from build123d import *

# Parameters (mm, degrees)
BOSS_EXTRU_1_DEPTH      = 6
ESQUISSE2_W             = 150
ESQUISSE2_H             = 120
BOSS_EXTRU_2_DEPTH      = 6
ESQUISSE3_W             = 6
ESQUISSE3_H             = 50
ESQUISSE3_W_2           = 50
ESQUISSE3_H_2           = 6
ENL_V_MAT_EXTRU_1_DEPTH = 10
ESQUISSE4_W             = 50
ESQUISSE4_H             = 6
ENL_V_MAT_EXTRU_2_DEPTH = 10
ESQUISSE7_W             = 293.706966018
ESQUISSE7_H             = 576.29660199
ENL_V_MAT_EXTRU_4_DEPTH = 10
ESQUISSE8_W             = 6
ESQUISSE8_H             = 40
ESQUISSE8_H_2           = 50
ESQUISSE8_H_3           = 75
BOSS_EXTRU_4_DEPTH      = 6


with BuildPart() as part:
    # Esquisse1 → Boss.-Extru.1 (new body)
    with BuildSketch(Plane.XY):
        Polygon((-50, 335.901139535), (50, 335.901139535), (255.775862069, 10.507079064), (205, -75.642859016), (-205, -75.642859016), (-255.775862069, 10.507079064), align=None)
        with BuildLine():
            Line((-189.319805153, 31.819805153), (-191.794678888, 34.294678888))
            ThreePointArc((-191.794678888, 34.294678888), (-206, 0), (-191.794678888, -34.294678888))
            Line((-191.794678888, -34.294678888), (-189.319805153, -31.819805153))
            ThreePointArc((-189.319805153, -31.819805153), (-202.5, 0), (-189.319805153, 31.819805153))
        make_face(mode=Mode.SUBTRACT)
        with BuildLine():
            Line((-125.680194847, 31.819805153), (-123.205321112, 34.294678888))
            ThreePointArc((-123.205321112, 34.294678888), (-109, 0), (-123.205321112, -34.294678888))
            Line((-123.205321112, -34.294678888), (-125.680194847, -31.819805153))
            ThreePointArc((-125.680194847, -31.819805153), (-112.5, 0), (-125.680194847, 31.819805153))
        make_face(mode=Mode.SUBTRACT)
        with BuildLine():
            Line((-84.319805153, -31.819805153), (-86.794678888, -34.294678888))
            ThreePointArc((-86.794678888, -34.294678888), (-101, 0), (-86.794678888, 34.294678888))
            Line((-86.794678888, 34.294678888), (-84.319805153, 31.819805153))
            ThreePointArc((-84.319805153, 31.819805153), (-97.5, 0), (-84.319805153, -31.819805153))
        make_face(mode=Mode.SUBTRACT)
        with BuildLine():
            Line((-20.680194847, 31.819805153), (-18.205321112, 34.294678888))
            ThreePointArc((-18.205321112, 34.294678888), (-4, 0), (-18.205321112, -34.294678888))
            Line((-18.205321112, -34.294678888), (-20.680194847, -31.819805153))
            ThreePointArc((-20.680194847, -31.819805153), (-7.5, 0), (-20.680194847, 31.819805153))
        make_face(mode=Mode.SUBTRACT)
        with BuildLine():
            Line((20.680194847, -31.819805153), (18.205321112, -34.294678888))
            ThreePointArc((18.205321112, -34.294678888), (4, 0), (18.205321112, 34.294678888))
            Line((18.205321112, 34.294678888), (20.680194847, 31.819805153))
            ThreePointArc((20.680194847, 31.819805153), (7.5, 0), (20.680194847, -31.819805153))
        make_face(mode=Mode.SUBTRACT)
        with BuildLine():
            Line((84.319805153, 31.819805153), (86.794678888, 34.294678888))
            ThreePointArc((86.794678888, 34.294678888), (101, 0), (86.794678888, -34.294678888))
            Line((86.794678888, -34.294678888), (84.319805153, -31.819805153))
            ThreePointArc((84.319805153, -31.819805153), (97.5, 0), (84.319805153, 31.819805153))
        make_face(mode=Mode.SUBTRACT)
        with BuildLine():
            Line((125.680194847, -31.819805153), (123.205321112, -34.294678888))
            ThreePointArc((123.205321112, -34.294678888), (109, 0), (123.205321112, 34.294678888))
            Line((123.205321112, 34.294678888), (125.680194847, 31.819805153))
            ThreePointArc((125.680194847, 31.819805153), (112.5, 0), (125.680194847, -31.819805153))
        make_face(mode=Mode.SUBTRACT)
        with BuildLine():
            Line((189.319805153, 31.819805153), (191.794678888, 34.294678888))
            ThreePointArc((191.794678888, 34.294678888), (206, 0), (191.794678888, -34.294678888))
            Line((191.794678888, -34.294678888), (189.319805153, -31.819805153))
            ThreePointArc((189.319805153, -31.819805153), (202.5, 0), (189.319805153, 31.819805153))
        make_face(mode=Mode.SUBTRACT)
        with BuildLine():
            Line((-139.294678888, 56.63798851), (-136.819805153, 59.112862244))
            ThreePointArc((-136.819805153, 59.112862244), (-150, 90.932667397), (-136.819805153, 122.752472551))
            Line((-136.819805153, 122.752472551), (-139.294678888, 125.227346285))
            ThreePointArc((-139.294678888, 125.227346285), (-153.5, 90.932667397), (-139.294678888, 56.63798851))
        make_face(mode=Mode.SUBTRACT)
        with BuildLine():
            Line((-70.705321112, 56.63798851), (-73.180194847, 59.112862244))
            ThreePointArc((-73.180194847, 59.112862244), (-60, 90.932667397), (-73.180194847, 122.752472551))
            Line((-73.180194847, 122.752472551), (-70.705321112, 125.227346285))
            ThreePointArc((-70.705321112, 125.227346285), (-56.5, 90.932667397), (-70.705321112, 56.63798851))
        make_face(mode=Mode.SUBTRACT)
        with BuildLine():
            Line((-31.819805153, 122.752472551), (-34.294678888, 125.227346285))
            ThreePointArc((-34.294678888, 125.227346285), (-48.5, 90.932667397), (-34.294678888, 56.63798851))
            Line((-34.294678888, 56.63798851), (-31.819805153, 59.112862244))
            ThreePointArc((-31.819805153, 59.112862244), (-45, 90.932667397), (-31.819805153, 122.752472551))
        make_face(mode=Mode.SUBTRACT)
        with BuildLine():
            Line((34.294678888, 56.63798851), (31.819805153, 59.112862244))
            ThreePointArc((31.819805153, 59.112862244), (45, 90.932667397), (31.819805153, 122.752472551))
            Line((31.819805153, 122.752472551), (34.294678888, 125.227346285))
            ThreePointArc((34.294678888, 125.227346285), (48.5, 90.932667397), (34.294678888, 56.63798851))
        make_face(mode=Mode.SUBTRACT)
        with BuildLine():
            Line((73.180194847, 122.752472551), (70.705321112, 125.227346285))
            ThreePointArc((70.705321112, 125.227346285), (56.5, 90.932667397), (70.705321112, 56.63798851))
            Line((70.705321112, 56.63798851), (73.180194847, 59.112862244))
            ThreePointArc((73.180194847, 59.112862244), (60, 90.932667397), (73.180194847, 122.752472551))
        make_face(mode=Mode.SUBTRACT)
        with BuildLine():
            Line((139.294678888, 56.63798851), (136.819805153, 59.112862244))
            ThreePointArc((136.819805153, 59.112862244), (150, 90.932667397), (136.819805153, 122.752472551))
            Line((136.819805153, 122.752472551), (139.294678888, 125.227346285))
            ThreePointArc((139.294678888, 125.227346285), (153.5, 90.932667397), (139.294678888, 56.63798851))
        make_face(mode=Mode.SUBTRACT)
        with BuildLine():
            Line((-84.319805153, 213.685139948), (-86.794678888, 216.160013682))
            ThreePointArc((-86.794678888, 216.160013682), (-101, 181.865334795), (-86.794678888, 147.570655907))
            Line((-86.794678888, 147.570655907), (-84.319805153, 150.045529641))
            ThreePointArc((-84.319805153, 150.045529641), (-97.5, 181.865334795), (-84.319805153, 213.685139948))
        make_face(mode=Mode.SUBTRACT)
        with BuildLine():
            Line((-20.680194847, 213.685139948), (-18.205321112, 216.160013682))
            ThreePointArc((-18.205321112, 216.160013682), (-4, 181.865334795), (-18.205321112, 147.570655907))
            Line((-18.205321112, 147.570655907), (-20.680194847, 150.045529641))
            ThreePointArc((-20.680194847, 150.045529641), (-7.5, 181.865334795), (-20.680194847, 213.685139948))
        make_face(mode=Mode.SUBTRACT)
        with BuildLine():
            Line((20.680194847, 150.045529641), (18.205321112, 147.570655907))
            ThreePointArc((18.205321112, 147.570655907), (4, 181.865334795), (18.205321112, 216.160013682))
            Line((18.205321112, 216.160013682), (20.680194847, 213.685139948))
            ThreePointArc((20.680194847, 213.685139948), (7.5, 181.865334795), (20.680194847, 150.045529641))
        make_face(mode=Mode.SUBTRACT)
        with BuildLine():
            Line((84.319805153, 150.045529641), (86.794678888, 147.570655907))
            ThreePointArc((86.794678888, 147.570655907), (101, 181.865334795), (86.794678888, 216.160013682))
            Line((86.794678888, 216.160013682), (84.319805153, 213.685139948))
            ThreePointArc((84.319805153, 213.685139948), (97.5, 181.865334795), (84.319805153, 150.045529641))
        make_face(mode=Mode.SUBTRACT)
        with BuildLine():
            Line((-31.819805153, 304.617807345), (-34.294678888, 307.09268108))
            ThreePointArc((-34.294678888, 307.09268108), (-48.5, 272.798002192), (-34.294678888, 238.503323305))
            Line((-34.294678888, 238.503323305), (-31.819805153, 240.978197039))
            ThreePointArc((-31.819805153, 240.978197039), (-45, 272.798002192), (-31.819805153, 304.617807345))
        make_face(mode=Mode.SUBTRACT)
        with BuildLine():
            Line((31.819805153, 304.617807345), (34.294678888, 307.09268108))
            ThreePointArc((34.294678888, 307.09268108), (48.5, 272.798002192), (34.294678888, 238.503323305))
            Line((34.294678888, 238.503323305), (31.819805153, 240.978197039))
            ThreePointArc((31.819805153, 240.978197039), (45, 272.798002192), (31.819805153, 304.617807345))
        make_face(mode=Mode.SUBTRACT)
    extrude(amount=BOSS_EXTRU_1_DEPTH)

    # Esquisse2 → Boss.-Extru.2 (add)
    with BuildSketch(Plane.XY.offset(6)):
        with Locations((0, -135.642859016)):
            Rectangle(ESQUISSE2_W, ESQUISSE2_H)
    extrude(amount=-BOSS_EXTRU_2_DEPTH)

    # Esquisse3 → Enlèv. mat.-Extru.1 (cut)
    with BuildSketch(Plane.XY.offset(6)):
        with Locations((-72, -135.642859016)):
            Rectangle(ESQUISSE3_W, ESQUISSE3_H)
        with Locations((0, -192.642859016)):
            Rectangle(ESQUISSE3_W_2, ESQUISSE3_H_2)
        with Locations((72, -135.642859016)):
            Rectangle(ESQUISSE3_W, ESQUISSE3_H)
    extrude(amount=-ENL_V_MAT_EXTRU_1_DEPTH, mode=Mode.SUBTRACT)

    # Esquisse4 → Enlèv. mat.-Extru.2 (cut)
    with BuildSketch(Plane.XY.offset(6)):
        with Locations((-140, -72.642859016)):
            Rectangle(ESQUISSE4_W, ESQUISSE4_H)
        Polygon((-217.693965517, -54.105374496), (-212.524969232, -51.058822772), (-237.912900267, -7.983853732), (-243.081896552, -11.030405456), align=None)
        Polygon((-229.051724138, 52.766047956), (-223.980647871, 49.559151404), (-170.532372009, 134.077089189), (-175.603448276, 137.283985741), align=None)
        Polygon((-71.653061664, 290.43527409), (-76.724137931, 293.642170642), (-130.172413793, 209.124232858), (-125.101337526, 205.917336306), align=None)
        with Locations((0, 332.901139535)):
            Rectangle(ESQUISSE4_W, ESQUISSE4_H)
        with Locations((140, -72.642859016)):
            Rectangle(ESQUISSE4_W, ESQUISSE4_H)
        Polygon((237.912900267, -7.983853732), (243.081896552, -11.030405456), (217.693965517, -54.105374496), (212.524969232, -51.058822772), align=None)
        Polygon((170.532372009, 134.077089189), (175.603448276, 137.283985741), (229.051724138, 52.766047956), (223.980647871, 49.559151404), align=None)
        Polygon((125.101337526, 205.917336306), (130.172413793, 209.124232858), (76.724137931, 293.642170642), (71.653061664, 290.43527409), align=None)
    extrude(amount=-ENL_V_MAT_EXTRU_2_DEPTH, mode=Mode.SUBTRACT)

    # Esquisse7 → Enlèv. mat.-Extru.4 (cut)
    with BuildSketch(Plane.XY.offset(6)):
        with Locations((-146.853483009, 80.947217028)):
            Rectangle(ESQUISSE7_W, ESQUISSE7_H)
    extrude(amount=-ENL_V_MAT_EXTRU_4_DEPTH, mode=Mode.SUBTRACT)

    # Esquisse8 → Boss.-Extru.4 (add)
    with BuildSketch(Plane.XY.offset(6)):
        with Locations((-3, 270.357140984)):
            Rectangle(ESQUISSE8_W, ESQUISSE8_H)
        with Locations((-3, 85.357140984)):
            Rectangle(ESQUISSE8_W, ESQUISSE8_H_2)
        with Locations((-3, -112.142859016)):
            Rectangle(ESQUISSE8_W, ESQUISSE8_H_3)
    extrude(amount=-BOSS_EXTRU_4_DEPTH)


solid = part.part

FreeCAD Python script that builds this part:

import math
import FreeCAD as App
import Part
import Sketcher
from FreeCAD import Vector


def add_polygon(sketch, points):
    """Adds a closed chain of lines whose ends are joined by coincident constraints."""
    first, n = sketch.GeometryCount, len(points)
    for a, b in zip(points, points[1:] + points[:1]):
        sketch.addGeometry(Part.LineSegment(App.Vector(*a, 0), App.Vector(*b, 0)), False)
    for i in range(n):
        sketch.addConstraint(Sketcher.Constraint("Coincident", first + i, 2, first + (i + 1) % n, 1))

doc = App.newDocument("Part")
body = doc.addObject("PartDesign::Body", "Body")

sketch1 = body.newObject("Sketcher::SketchObject", "Sketch")
sketch1.AttachmentSupport = (doc.getObject("XY_Plane"), [""])
sketch1.MapMode = "FlatFace"
add_polygon(sketch1, [(50, 335.9), (-50, 335.9), (-255.8, 10.5), (-205, -75.6), (205, -75.6), (255.8, 10.5)])
sketch1.addGeometry(Part.LineSegment(Vector(189.3, 31.8, 0), Vector(191.8, 34.3, 0)), False)
sketch1.addGeometry(Part.ArcOfCircle(Part.Circle(Vector(157.5, 0, 0), Vector(0, 0, 1), 48.5), math.radians(-45), math.radians(45)), False)
sketch1.addGeometry(Part.LineSegment(Vector(191.8, -34.3, 0), Vector(189.3, -31.8, 0)), False)
sketch1.addGeometry(Part.ArcOfCircle(Part.Circle(Vector(157.5, 0, 0), Vector(0, 0, 1), 45), math.radians(-45), math.radians(45)), False)
sketch1.addGeometry(Part.LineSegment(Vector(125.7, -31.8, 0), Vector(123.2, -34.3, 0)), False)
sketch1.addGeometry(Part.ArcOfCircle(Part.Circle(Vector(157.5, 0, 0), Vector(0, 0, 1), 48.5), math.radians(135), math.radians(225)), False)
sketch1.addGeometry(Part.LineSegment(Vector(123.2, 34.3, 0), Vector(125.7, 31.8, 0)), False)
sketch1.addGeometry(Part.ArcOfCircle(Part.Circle(Vector(157.5, 0, 0), Vector(0, 0, 1), 45), math.radians(135), math.radians(225)), False)
sketch1.addGeometry(Part.LineSegment(Vector(84.3, 31.8, 0), Vector(86.8, 34.3, 0)), False)
sketch1.addGeometry(Part.ArcOfCircle(Part.Circle(Vector(52.5, 0, 0), Vector(0, 0, 1), 48.5), math.radians(-45), math.radians(45)), False)
sketch1.addGeometry(Part.LineSegment(Vector(86.8, -34.3, 0), Vector(84.3, -31.8, 0)), False)
sketch1.addGeometry(Part.ArcOfCircle(Part.Circle(Vector(52.5, 0, 0), Vector(0, 0, 1), 45), math.radians(-45), math.radians(45)), False)
sketch1.addGeometry(Part.LineSegment(Vector(20.7, -31.8, 0), Vector(18.2, -34.3, 0)), False)
sketch1.addGeometry(Part.ArcOfCircle(Part.Circle(Vector(52.5, 0, 0), Vector(0, 0, 1), 48.5), math.radians(135), math.radians(225)), False)
sketch1.addGeometry(Part.LineSegment(Vector(18.2, 34.3, 0), Vector(20.7, 31.8, 0)), False)
sketch1.addGeometry(Part.ArcOfCircle(Part.Circle(Vector(52.5, 0, 0), Vector(0, 0, 1), 45), math.radians(135), math.radians(225)), False)
sketch1.addGeometry(Part.LineSegment(Vector(139.3, 56.6, 0), Vector(136.8, 59.1, 0)), False)
sketch1.addGeometry(Part.ArcOfCircle(Part.Circle(Vector(105, 90.9, 0), Vector(0, 0, 1), 45), math.radians(-45), math.radians(45)), False)
sketch1.addGeometry(Part.LineSegment(Vector(136.8, 122.8, 0), Vector(139.3, 125.2, 0)), False)
sketch1.addGeometry(Part.ArcOfCircle(Part.Circle(Vector(105, 90.9, 0), Vector(0, 0, 1), 48.5), math.radians(-45), math.radians(45)), False)
sketch1.addGeometry(Part.ArcOfCircle(Part.Circle(Vector(105, 90.9, 0), Vector(0, 0, 1), 45), math.radians(135), math.radians(225)), False)
sketch1.addGeometry(Part.LineSegment(Vector(73.2, 59.1, 0), Vector(70.7, 56.6, 0)), False)
sketch1.addGeometry(Part.ArcOfCircle(Part.Circle(Vector(105, 90.9, 0), Vector(0, 0, 1), 48.5), math.radians(135), math.radians(225)), False)
sketch1.addGeometry(Part.LineSegment(Vector(70.7, 125.2, 0), Vector(73.2, 122.8, 0)), False)
sketch1.addGeometry(Part.LineSegment(Vector(34.3, 56.6, 0), Vector(31.8, 59.1, 0)), False)
sketch1.addGeometry(Part.ArcOfCircle(Part.Circle(Vector(0, 90.9, 0), Vector(0, 0, 1), 45), math.radians(-45), math.radians(45)), False)
sketch1.addGeometry(Part.LineSegment(Vector(31.8, 122.8, 0), Vector(34.3, 125.2, 0)), False)
sketch1.addGeometry(Part.ArcOfCircle(Part.Circle(Vector(0, 90.9, 0), Vector(0, 0, 1), 48.5), math.radians(-45), math.radians(45)), False)
sketch1.addGeometry(Part.LineSegment(Vector(-20.7, 31.8, 0), Vector(-18.2, 34.3, 0)), False)
sketch1.addGeometry(Part.ArcOfCircle(Part.Circle(Vector(-52.5, 0, 0), Vector(0, 0, 1), 48.5), math.radians(-45), math.radians(45)), False)
sketch1.addGeometry(Part.LineSegment(Vector(-18.2, -34.3, 0), Vector(-20.7, -31.8, 0)), False)
sketch1.addGeometry(Part.ArcOfCircle(Part.Circle(Vector(-52.5, 0, 0), Vector(0, 0, 1), 45), math.radians(-45), math.radians(45)), False)
sketch1.addGeometry(Part.LineSegment(Vector(-84.3, -31.8, 0), Vector(-86.8, -34.3, 0)), False)
sketch1.addGeometry(Part.ArcOfCircle(Part.Circle(Vector(-52.5, 0, 0), Vector(0, 0, 1), 48.5), math.radians(135), math.radians(225)), False)
sketch1.addGeometry(Part.LineSegment(Vector(-86.8, 34.3, 0), Vector(-84.3, 31.8, 0)), False)
sketch1.addGeometry(Part.ArcOfCircle(Part.Circle(Vector(-52.5, 0, 0), Vector(0, 0, 1), 45), math.radians(135), math.radians(225)), False)
sketch1.addGeometry(Part.LineSegment(Vector(-125.7, 31.8, 0), Vector(-123.2, 34.3, 0)), False)
sketch1.addGeometry(Part.ArcOfCircle(Part.Circle(Vector(-157.5, 0, 0), Vector(0, 0, 1), 48.5), math.radians(-45), math.radians(45)), False)
sketch1.addGeometry(Part.LineSegment(Vector(-123.2, -34.3, 0), Vector(-125.7, -31.8, 0)), False)
sketch1.addGeometry(Part.ArcOfCircle(Part.Circle(Vector(-157.5, 0, 0), Vector(0, 0, 1), 45), math.radians(-45), math.radians(45)), False)
sketch1.addGeometry(Part.ArcOfCircle(Part.Circle(Vector(-157.5, 0, 0), Vector(0, 0, 1), 45), math.radians(135), math.radians(225)), False)
sketch1.addGeometry(Part.LineSegment(Vector(-189.3, -31.8, 0), Vector(-191.8, -34.3, 0)), False)
sketch1.addGeometry(Part.ArcOfCircle(Part.Circle(Vector(-157.5, 0, 0), Vector(0, 0, 1), 48.5), math.radians(135), math.radians(225)), False)
sketch1.addGeometry(Part.LineSegment(Vector(-191.8, 34.3, 0), Vector(-189.3, 31.8, 0)), False)
sketch1.addGeometry(Part.ArcOfCircle(Part.Circle(Vector(0, 90.9, 0), Vector(0, 0, 1), 45), math.radians(135), math.radians(225)), False)
sketch1.addGeometry(Part.LineSegment(Vector(-31.8, 59.1, 0), Vector(-34.3, 56.6, 0)), False)
sketch1.addGeometry(Part.ArcOfCircle(Part.Circle(Vector(0, 90.9, 0), Vector(0, 0, 1), 48.5), math.radians(135), math.radians(225)), False)
sketch1.addGeometry(Part.LineSegment(Vector(-34.3, 125.2, 0), Vector(-31.8, 122.8, 0)), False)
sketch1.addGeometry(Part.LineSegment(Vector(-70.7, 56.6, 0), Vector(-73.2, 59.1, 0)), False)
sketch1.addGeometry(Part.ArcOfCircle(Part.Circle(Vector(-105, 90.9, 0), Vector(0, 0, 1), 45), math.radians(-45), math.radians(45)), False)
sketch1.addGeometry(Part.LineSegment(Vector(-73.2, 122.8, 0), Vector(-70.7, 125.2, 0)), False)
sketch1.addGeometry(Part.ArcOfCircle(Part.Circle(Vector(-105, 90.9, 0), Vector(0, 0, 1), 48.5), math.radians(-45), math.radians(45)), False)
sketch1.addGeometry(Part.ArcOfCircle(Part.Circle(Vector(-105, 90.9, 0), Vector(0, 0, 1), 48.5), math.radians(135), math.radians(225)), False)
sketch1.addGeometry(Part.LineSegment(Vector(-139.3, 125.2, 0), Vector(-136.8, 122.8, 0)), False)
sketch1.addGeometry(Part.ArcOfCircle(Part.Circle(Vector(-105, 90.9, 0), Vector(0, 0, 1), 45), math.radians(135), math.radians(225)), False)
sketch1.addGeometry(Part.LineSegment(Vector(-136.8, 59.1, 0), Vector(-139.3, 56.6, 0)), False)
sketch1.addGeometry(Part.ArcOfCircle(Part.Circle(Vector(52.5, 181.9, 0), Vector(0, 0, 1), 45), math.radians(-45), math.radians(45)), False)
sketch1.addGeometry(Part.LineSegment(Vector(84.3, 213.7, 0), Vector(86.8, 216.2, 0)), False)
sketch1.addGeometry(Part.ArcOfCircle(Part.Circle(Vector(52.5, 181.9, 0), Vector(0, 0, 1), 48.5), math.radians(-45), math.radians(45)), False)
sketch1.addGeometry(Part.LineSegment(Vector(86.8, 147.6, 0), Vector(84.3, 150, 0)), False)
sketch1.addGeometry(Part.LineSegment(Vector(20.7, 150, 0), Vector(18.2, 147.6, 0)), False)
sketch1.addGeometry(Part.ArcOfCircle(Part.Circle(Vector(52.5, 181.9, 0), Vector(0, 0, 1), 48.5), math.radians(135), math.radians(225)), False)
sketch1.addGeometry(Part.LineSegment(Vector(18.2, 216.2, 0), Vector(20.7, 213.7, 0)), False)
sketch1.addGeometry(Part.ArcOfCircle(Part.Circle(Vector(52.5, 181.9, 0), Vector(0, 0, 1), 45), math.radians(135), math.radians(225)), False)
sketch1.addGeometry(Part.LineSegment(Vector(31.8, 304.6, 0), Vector(34.3, 307.1, 0)), False)
sketch1.addGeometry(Part.ArcOfCircle(Part.Circle(Vector(0, 272.8, 0), Vector(0, 0, 1), 48.5), math.radians(-45), math.radians(45)), False)
sketch1.addGeometry(Part.LineSegment(Vector(34.3, 238.5, 0), Vector(31.8, 241, 0)), False)
sketch1.addGeometry(Part.ArcOfCircle(Part.Circle(Vector(0, 272.8, 0), Vector(0, 0, 1), 45), math.radians(-45), math.radians(45)), False)
sketch1.addGeometry(Part.LineSegment(Vector(-20.7, 213.7, 0), Vector(-18.2, 216.2, 0)), False)
sketch1.addGeometry(Part.ArcOfCircle(Part.Circle(Vector(-52.5, 181.9, 0), Vector(0, 0, 1), 48.5), math.radians(-45), math.radians(45)), False)
sketch1.addGeometry(Part.LineSegment(Vector(-18.2, 147.6, 0), Vector(-20.7, 150, 0)), False)
sketch1.addGeometry(Part.ArcOfCircle(Part.Circle(Vector(-52.5, 181.9, 0), Vector(0, 0, 1), 45), math.radians(-45), math.radians(45)), False)
sketch1.addGeometry(Part.ArcOfCircle(Part.Circle(Vector(-52.5, 181.9, 0), Vector(0, 0, 1), 45), math.radians(135), math.radians(225)), False)
sketch1.addGeometry(Part.LineSegment(Vector(-84.3, 150, 0), Vector(-86.8, 147.6, 0)), False)
sketch1.addGeometry(Part.ArcOfCircle(Part.Circle(Vector(-52.5, 181.9, 0), Vector(0, 0, 1), 48.5), math.radians(135), math.radians(225)), False)
sketch1.addGeometry(Part.LineSegment(Vector(-86.8, 216.2, 0), Vector(-84.3, 213.7, 0)), False)
sketch1.addGeometry(Part.ArcOfCircle(Part.Circle(Vector(0, 272.8, 0), Vector(0, 0, 1), 45), math.radians(135), math.radians(225)), False)
sketch1.addGeometry(Part.LineSegment(Vector(-31.8, 241, 0), Vector(-34.3, 238.5, 0)), False)
sketch1.addGeometry(Part.ArcOfCircle(Part.Circle(Vector(0, 272.8, 0), Vector(0, 0, 1), 48.5), math.radians(135), math.radians(225)), False)
sketch1.addGeometry(Part.LineSegment(Vector(-34.3, 307.1, 0), Vector(-31.8, 304.6, 0)), False)
sketch1.addConstraint([
    Sketcher.Constraint("Coincident", 6, 2, 7, 2),
    Sketcher.Constraint("Coincident", 7, 1, 8, 1),
    Sketcher.Constraint("Coincident", 8, 2, 9, 1),
    Sketcher.Constraint("Coincident", 9, 2, 6, 1),
    Sketcher.Constraint("Coincident", 10, 2, 11, 2),
    Sketcher.Constraint("Coincident", 11, 1, 12, 1),
    Sketcher.Constraint("Coincident", 12, 2, 13, 1),
    Sketcher.Constraint("Coincident", 13, 2, 10, 1),
    Sketcher.Constraint("Coincident", 14, 2, 15, 2),
    Sketcher.Constraint("Coincident", 15, 1, 16, 1),
    Sketcher.Constraint("Coincident", 16, 2, 17, 1),
    Sketcher.Constraint("Coincident", 17, 2, 14, 1),
    Sketcher.Constraint("Coincident", 18, 2, 19, 2),
    Sketcher.Constraint("Coincident", 19, 1, 20, 1),
    Sketcher.Constraint("Coincident", 20, 2, 21, 1),
    Sketcher.Constraint("Coincident", 21, 2, 18, 1),
    Sketcher.Constraint("Coincident", 22, 2, 23, 1),
    Sketcher.Constraint("Coincident", 23, 2, 24, 1),
    Sketcher.Constraint("Coincident", 24, 2, 25, 2),
    Sketcher.Constraint("Coincident", 25, 1, 22, 1),
    Sketcher.Constraint("Coincident", 26, 2, 27, 1),
    Sketcher.Constraint("Coincident", 27, 2, 28, 2),
    Sketcher.Constraint("Coincident", 28, 1, 29, 1),
    Sketcher.Constraint("Coincident", 29, 2, 26, 1),
    Sketcher.Constraint("Coincident", 30, 2, 31, 1),
    Sketcher.Constraint("Coincident", 31, 2, 32, 1),
    Sketcher.Constraint("Coincident", 32, 2, 33, 2),
    Sketcher.Constraint("Coincident", 33, 1, 30, 1),
    Sketcher.Constraint("Coincident", 34, 2, 35, 2),
    Sketcher.Constraint("Coincident", 35, 1, 36, 1),
    Sketcher.Constraint("Coincident", 36, 2, 37, 1),
    Sketcher.Constraint("Coincident", 37, 2, 34, 1),
    Sketcher.Constraint("Coincident", 38, 2, 39, 2),
    Sketcher.Constraint("Coincident", 39, 1, 40, 1),
    Sketcher.Constraint("Coincident", 40, 2, 41, 1),
    Sketcher.Constraint("Coincident", 41, 2, 38, 1),
    Sketcher.Constraint("Coincident", 42, 2, 43, 2),
    Sketcher.Constraint("Coincident", 43, 1, 44, 1),
    Sketcher.Constraint("Coincident", 44, 2, 45, 1),
    Sketcher.Constraint("Coincident", 45, 2, 42, 1),
    Sketcher.Constraint("Coincident", 46, 2, 47, 1),
    Sketcher.Constraint("Coincident", 47, 2, 48, 2),
    Sketcher.Constraint("Coincident", 48, 1, 49, 1),
    Sketcher.Constraint("Coincident", 49, 2, 46, 1),
    Sketcher.Constraint("Coincident", 50, 2, 51, 1),
    Sketcher.Constraint("Coincident", 51, 2, 52, 2),
    Sketcher.Constraint("Coincident", 52, 1, 53, 1),
    Sketcher.Constraint("Coincident", 53, 2, 50, 1),
    Sketcher.Constraint("Coincident", 54, 2, 55, 1),
    Sketcher.Constraint("Coincident", 55, 2, 56, 1),
    Sketcher.Constraint("Coincident", 56, 2, 57, 2),
    Sketcher.Constraint("Coincident", 57, 1, 54, 1),
    Sketcher.Constraint("Coincident", 58, 1, 59, 1),
    Sketcher.Constraint("Coincident", 59, 2, 60, 1),
    Sketcher.Constraint("Coincident", 60, 2, 61, 1),
    Sketcher.Constraint("Coincident", 61, 2, 58, 2),
    Sketcher.Constraint("Coincident", 62, 2, 63, 1),
    Sketcher.Constraint("Coincident", 63, 2, 64, 2),
    Sketcher.Constraint("Coincident", 64, 1, 65, 1),
    Sketcher.Constraint("Coincident", 65, 2, 62, 1),
    Sketcher.Constraint("Coincident", 66, 2, 67, 2),
    Sketcher.Constraint("Coincident", 67, 1, 68, 1),
    Sketcher.Constraint("Coincident", 68, 2, 69, 1),
    Sketcher.Constraint("Coincident", 69, 2, 66, 1),
    Sketcher.Constraint("Coincident", 70, 2, 71, 2),
    Sketcher.Constraint("Coincident", 71, 1, 72, 1),
    Sketcher.Constraint("Coincident", 72, 2, 73, 1),
    Sketcher.Constraint("Coincident", 73, 2, 70, 1),
    Sketcher.Constraint("Coincident", 74, 2, 75, 2),
    Sketcher.Constraint("Coincident", 75, 1, 76, 1),
    Sketcher.Constraint("Coincident", 76, 2, 77, 1),
    Sketcher.Constraint("Coincident", 77, 2, 74, 1),
    Sketcher.Constraint("Coincident", 78, 2, 79, 1),
    Sketcher.Constraint("Coincident", 79, 2, 80, 2),
    Sketcher.Constraint("Coincident", 80, 1, 81, 1),
    Sketcher.Constraint("Coincident", 81, 2, 78, 1),
    Sketcher.Constraint("Coincident", 82, 2, 83, 1),
    Sketcher.Constraint("Coincident", 83, 2, 84, 2),
    Sketcher.Constraint("Coincident", 84, 1, 85, 1),
    Sketcher.Constraint("Coincident", 85, 2, 82, 1),
    Sketcher.Constraint("Horizontal", 0),
    Sketcher.Constraint("Horizontal", 3),
    Sketcher.Constraint("Coincident", 9, 3, 7, 3),
    Sketcher.Constraint("Coincident", 11, 3, 7, 3),
    Sketcher.Constraint("Coincident", 13, 3, 7, 3),
    Sketcher.Constraint("Coincident", 17, 3, 15, 3),
    Sketcher.Constraint("Coincident", 19, 3, 15, 3),
    Sketcher.Constraint("Coincident", 21, 3, 15, 3),
    Sketcher.Constraint("Coincident", 25, 3, 23, 3),
    Sketcher.Constraint("Coincident", 26, 3, 23, 3),
    Sketcher.Constraint("Coincident", 28, 3, 23, 3),
    Sketcher.Constraint("Coincident", 33, 3, 31, 3),
    Sketcher.Constraint("Coincident", 37, 3, 35, 3),
    Sketcher.Constraint("Coincident", 39, 3, 35, 3),
    Sketcher.Constraint("Coincident", 41, 3, 35, 3),
    Sketcher.Constraint("Coincident", 45, 3, 43, 3),
    Sketcher.Constraint("Coincident", 46, 3, 43, 3),
    Sketcher.Constraint("Coincident", 48, 3, 43, 3),
    Sketcher.Constraint("Coincident", 50, 3, 31, 3),
    Sketcher.Constraint("Coincident", 52, 3, 31, 3),
    Sketcher.Constraint("Coincident", 57, 3, 55, 3),
    Sketcher.Constraint("Coincident", 58, 3, 55, 3),
    Sketcher.Constraint("Coincident", 60, 3, 55, 3),
    Sketcher.Constraint("Coincident", 64, 3, 62, 3),
    Sketcher.Constraint("Coincident", 67, 3, 62, 3),
    Sketcher.Constraint("Coincident", 69, 3, 62, 3),
    Sketcher.Constraint("Coincident", 73, 3, 71, 3),
    Sketcher.Constraint("Coincident", 77, 3, 75, 3),
    Sketcher.Constraint("Coincident", 78, 3, 75, 3),
    Sketcher.Constraint("Coincident", 80, 3, 75, 3),
    Sketcher.Constraint("Coincident", 82, 3, 71, 3),
    Sketcher.Constraint("Coincident", 84, 3, 71, 3),
    Sketcher.Constraint("Equal", 7, 11),
    Sketcher.Constraint("Equal", 9, 13),
    Sketcher.Constraint("Equal", 11, 15),
    Sketcher.Constraint("Equal", 13, 17),
    Sketcher.Constraint("Equal", 15, 19),
    Sketcher.Constraint("Equal", 17, 21),
    Sketcher.Constraint("Equal", 21, 23),
    Sketcher.Constraint("Equal", 19, 25),
    Sketcher.Constraint("Equal", 23, 26),
    Sketcher.Constraint("Equal", 25, 28),
    Sketcher.Constraint("Equal", 26, 31),
    Sketcher.Constraint("Equal", 28, 33),
    Sketcher.Constraint("Equal", 33, 35),
    Sketcher.Constraint("Equal", 31, 37),
    Sketcher.Constraint("Equal", 35, 39),
    Sketcher.Constraint("Equal", 37, 41),
    Sketcher.Constraint("Equal", 39, 43),
    Sketcher.Constraint("Equal", 41, 45),
    Sketcher.Constraint("Equal", 45, 46),
    Sketcher.Constraint("Equal", 43, 48),
    Sketcher.Constraint("Equal", 46, 50),
    Sketcher.Constraint("Equal", 48, 52),
    Sketcher.Constraint("Equal", 50, 55),
    Sketcher.Constraint("Equal", 52, 57),
    Sketcher.Constraint("Equal", 57, 58),
    Sketcher.Constraint("Equal", 55, 60),
    Sketcher.Constraint("Equal", 60, 62),
    Sketcher.Constraint("Equal", 58, 64),
    Sketcher.Constraint("Equal", 64, 67),
    Sketcher.Constraint("Equal", 62, 69),
    Sketcher.Constraint("Equal", 67, 71),
    Sketcher.Constraint("Equal", 69, 73),
    Sketcher.Constraint("Equal", 71, 75),
    Sketcher.Constraint("Equal", 73, 77),
    Sketcher.Constraint("Equal", 77, 78),
    Sketcher.Constraint("Equal", 75, 80),
    Sketcher.Constraint("Equal", 78, 82),
    Sketcher.Constraint("Equal", 80, 84),
    Sketcher.Constraint("Symmetric", 15, 3, 35, 3, -1, 1),
    Sketcher.Constraint("Symmetric", 7, 3, 43, 3, -1, 1),
    Sketcher.Constraint("Symmetric", 23, 3, 55, 3, -2),
    Sketcher.Constraint("Symmetric", 62, 3, 75, 3, -2),
    Sketcher.Constraint("Symmetric", 1, 2, 4, 2, -2),
    Sketcher.Constraint("Symmetric", 19, 1, 34, 2, -2),
    Sketcher.Constraint("Symmetric", 11, 1, 42, 2, -2),
    Sketcher.Constraint("Symmetric", 30, 2, 50, 2, -2),
    Sketcher.Constraint("Symmetric", 72, 2, 82, 2, -2),
    Sketcher.Constraint("Perpendicular", 6, 8),
    Sketcher.Constraint("Perpendicular", 8, 10),
    Sketcher.Constraint("Perpendicular", 10, 12),
    Sketcher.Constraint("Perpendicular", 12, 14),
    Sketcher.Constraint("Perpendicular", 14, 16),
    Sketcher.Constraint("Perpendicular", 16, 18),
    Sketcher.Constraint("Perpendicular", 18, 20),
    Sketcher.Constraint("Parallel", 20, 22),
    Sketcher.Constraint("Perpendicular", 22, 24),
    Sketcher.Constraint("Parallel", 24, 27),
    Sketcher.Constraint("Perpendicular", 27, 29),
    Sketcher.Constraint("Parallel", 29, 30),
    Sketcher.Constraint("Perpendicular", 30, 32),
    Sketcher.Constraint("Parallel", 32, 34),
    Sketcher.Constraint("Perpendicular", 34, 36),
    Sketcher.Constraint("Perpendicular", 36, 38),
    Sketcher.Constraint("Perpendicular", 38, 40),
    Sketcher.Constraint("Perpendicular", 40, 42),
    Sketcher.Constraint("Perpendicular", 42, 44),
    Sketcher.Constraint("Perpendicular", 44, 47),
    Sketcher.Constraint("Perpendicular", 47, 49),
    Sketcher.Constraint("Perpendicular", 49, 51),
    Sketcher.Constraint("Perpendicular", 51, 53),
    Sketcher.Constraint("Parallel", 53, 54),
    Sketcher.Constraint("Perpendicular", 54, 56),
    Sketcher.Constraint("Perpendicular", 56, 59),
    Sketcher.Constraint("Perpendicular", 59, 61),
    Sketcher.Constraint("Parallel", 61, 63),
    Sketcher.Constraint("Perpendicular", 63, 65),
    Sketcher.Constraint("Perpendicular", 65, 66),
    Sketcher.Constraint("Perpendicular", 66, 68),
    Sketcher.Constraint("Perpendicular", 68, 70),
    Sketcher.Constraint("Perpendicular", 70, 72),
    Sketcher.Constraint("Perpendicular", 72, 74),
    Sketcher.Constraint("Perpendicular", 74, 76),
    Sketcher.Constraint("Perpendicular", 76, 79),
    Sketcher.Constraint("Perpendicular", 79, 81),
    Sketcher.Constraint("Perpendicular", 81, 83),
    Sketcher.Constraint("Perpendicular", 83, 85),
    Sketcher.Constraint("Horizontal", 28, 3, 31, 3),
    Sketcher.Constraint("Horizontal", 7, 1, 10, 2),
    Sketcher.Constraint("Horizontal", 6, 2, 11, 1),
    Sketcher.Constraint("Horizontal", 9, 2, 12, 2),
    Sketcher.Constraint("Horizontal", 11, 1, 14, 2),
    Sketcher.Constraint("Horizontal", 10, 2, 15, 1),
    Sketcher.Constraint("Horizontal", 15, 1, 18, 2),
    Sketcher.Constraint("Horizontal", 14, 2, 19, 1),
    Sketcher.Constraint("Horizontal", 22, 2, 26, 2),
    Sketcher.Constraint("Horizontal", 24, 2, 28, 1),
    Sketcher.Constraint("Horizontal", 26, 2, 30, 2),
    Sketcher.Constraint("Horizontal", 29, 2, 31, 2),
    Sketcher.Constraint("Horizontal", 18, 2, 35, 1),
    Sketcher.Constraint("Horizontal", 35, 1, 38, 2),
    Sketcher.Constraint("Horizontal", 34, 2, 39, 1),
    Sketcher.Constraint("Horizontal", 38, 2, 43, 1),
    Sketcher.Constraint("Horizontal", 44, 2, 46, 2),
    Sketcher.Constraint("Horizontal", 42, 2, 48, 1),
    Sketcher.Constraint("Horizontal", 32, 2, 52, 1),
    Sketcher.Constraint("Horizontal", 50, 2, 54, 2),
    Sketcher.Constraint("Horizontal", 53, 2, 55, 2),
    Sketcher.Constraint("Horizontal", 56, 2, 58, 1),
    Sketcher.Constraint("Horizontal", 54, 2, 60, 2),
    Sketcher.Constraint("Horizontal", 64, 1, 66, 2),
    Sketcher.Constraint("Horizontal", 63, 2, 67, 1),
    Sketcher.Constraint("Horizontal", 67, 1, 74, 2),
    Sketcher.Constraint("Horizontal", 66, 2, 75, 1),
    Sketcher.Constraint("Horizontal", 76, 2, 78, 2),
    Sketcher.Constraint("Horizontal", 74, 2, 80, 1),
    Sketcher.Constraint("Horizontal", 70, 2, 84, 1),
    Sketcher.Constraint("Vertical", 21, 3, 62, 3),
    Sketcher.Constraint("Vertical", 6, 2, 7, 1),
    Sketcher.Constraint("Vertical", 22, 2, 23, 2),
    Sketcher.Constraint("Vertical", 17, 2, 62, 2),
    Sketcher.Constraint("Vertical", 63, 2, 64, 1),
    Sketcher.Constraint("Vertical", 33, 1, 70, 2),
    Sketcher.Constraint("Vertical", 70, 2, 71, 1),
    Sketcher.Constraint("Equal", 2, 4),
    Sketcher.Constraint("Equal", 1, 5),
    Sketcher.Constraint("Radius", 9, 45.0),
    Sketcher.Constraint("Radius", 7, 48.5),
    Sketcher.Constraint("DistanceX", 0, 2, 0, 1, 100.0),
    Sketcher.Constraint("DistanceX", 3, 1, 3, 2, 410.0),
    Sketcher.Constraint("Distance", 1, 385.0),
    Sketcher.Constraint("Distance", 2, 100.0),
    Sketcher.Constraint("DistanceX", -1, 1, 23, 3, 105.0),
    Sketcher.Constraint("DistanceX", -1, 1, 7, 3, 157.5),
    Sketcher.Constraint("DistanceX", -1, 1, 15, 3, 52.5),
    Sketcher.Constraint("DistanceY", -1, 1, 0, 2, 335.90114),
    Sketcher.Constraint("DistanceY", -1, 1, 1, 2, 10.507079),
    Sketcher.Constraint("DistanceX", -1, 1, 6, 2, 191.794679),
    Sketcher.Constraint("DistanceX", -1, 1, 24, 2, 139.294679),
    Sketcher.Constraint("DistanceY", -1, 1, 25, 1, 56.637989),
    Sketcher.Constraint("DistanceY", -1, 1, 62, 2, 213.68514),
    Sketcher.Constraint("DistanceY", -1, 1, 70, 2, 307.092681),
])
pad1 = body.newObject("PartDesign::Pad", "Pad")
pad1.Profile = sketch1
pad1.Length = 6

sketch2 = body.newObject("Sketcher::SketchObject", "Sketch001")
sketch2.AttachmentSupport = (doc.getObject("XY_Plane"), [""])
sketch2.MapMode = "FlatFace"
sketch2.AttachmentOffset = App.Placement(Vector(0, 0, 6), App.Rotation())
add_polygon(sketch2, [(-75, -76), (-75, -196), (75, -196), (75, -76)])
sketch2.addConstraint([
    Sketcher.Constraint("Vertical", 0),
    Sketcher.Constraint("Horizontal", 1),
    Sketcher.Constraint("Vertical", 2),
    Sketcher.Constraint("Horizontal", 3),
    Sketcher.Constraint("DistanceX", 1, 1, 1, 2, 150.0),
    Sketcher.Constraint("DistanceY", 0, 2, 0, 1, 120.0),
    Sketcher.Constraint("DistanceX", 0, 2, -1, 1, 75.0),
    Sketcher.Constraint("DistanceY", 0, 2, -1, 1, 195.642859),
])
pad2 = body.newObject("PartDesign::Pad", "Pad001")
pad2.Profile = sketch2
pad2.Length = 6
pad2.Reversed = True

sketch3 = body.newObject("Sketcher::SketchObject", "Sketch002")
sketch3.AttachmentSupport = (doc.getObject("XY_Plane"), [""])
sketch3.MapMode = "FlatFace"
sketch3.AttachmentOffset = App.Placement(Vector(0, 0, 6), App.Rotation())
add_polygon(sketch3, [(-75, -111), (-75, -161), (-69, -161), (-69, -111)])
add_polygon(sketch3, [(-25, -190), (-25, -196), (25, -196), (25, -190)])
add_polygon(sketch3, [(69, -111), (69, -161), (75, -161), (75, -111)])
sketch3.addConstraint([
    Sketcher.Constraint("Vertical", 0),
    Sketcher.Constraint("Horizontal", 1),
    Sketcher.Constraint("Vertical", 2),
    Sketcher.Constraint("Horizontal", 3),
    Sketcher.Constraint("Vertical", 4),
    Sketcher.Constraint("Horizontal", 5),
    Sketcher.Constraint("Vertical", 6),
    Sketcher.Constraint("Horizontal", 7),
    Sketcher.Constraint("Vertical", 8),
    Sketcher.Constraint("Horizontal", 9),
    Sketcher.Constraint("Vertical", 10),
    Sketcher.Constraint("Horizontal", 11),
    Sketcher.Constraint("Symmetric", 1, 2, 8, 2, -2),
    Sketcher.Constraint("Symmetric", 3, 2, 10, 2, -2),
    Sketcher.Constraint("Equal", 7, 0),
    Sketcher.Constraint("Equal", 11, 4),
    Sketcher.Constraint("DistanceX", 1, 1, 1, 2, 6.0),
    Sketcher.Constraint("DistanceX", 5, 1, 5, 2, 50.0),
    Sketcher.Constraint("DistanceX", 0, 2, -1, 1, 75.0),
    Sketcher.Constraint("DistanceX", 4, 2, -1, 1, 25.0),
    Sketcher.Constraint("DistanceY", 4, 2, 1, 2, 35.0),
    Sketcher.Constraint("DistanceY", 0, 2, -1, 1, 160.642859),
])
pocket1 = body.newObject("PartDesign::Pocket", "Pocket")
pocket1.Profile = sketch3
pocket1.Length = 10

sketch4 = body.newObject("Sketcher::SketchObject", "Sketch003")
sketch4.AttachmentSupport = (doc.getObject("XY_Plane"), [""])
sketch4.MapMode = "FlatFace"
sketch4.AttachmentOffset = App.Placement(Vector(0, 0, 6), App.Rotation())
add_polygon(sketch4, [(-165, -70), (-165, -76), (-115, -76), (-115, -70)])
add_polygon(sketch4, [(-218, -54), (-213, -51), (-238, -8), (-243, -11)])
add_polygon(sketch4, [(-229, 53), (-224, 50), (-171, 134), (-176, 137)])
add_polygon(sketch4, [(-72, 290), (-77, 294), (-130, 209), (-125, 206)])
add_polygon(sketch4, [(-25, 336), (-25, 330), (25, 330), (25, 336)])
add_polygon(sketch4, [(115, -70), (115, -76), (165, -76), (165, -70)])
add_polygon(sketch4, [(243, -11), (238, -8), (213, -51), (218, -54)])
add_polygon(sketch4, [(176, 137), (171, 134), (224, 50), (229, 53)])
add_polygon(sketch4, [(125, 206), (130, 209), (77, 294), (72, 290)])
sketch4.addConstraint([
    Sketcher.Constraint("Vertical", 0),
    Sketcher.Constraint("Horizontal", 1),
    Sketcher.Constraint("Vertical", 2),
    Sketcher.Constraint("Horizontal", 3),
    Sketcher.Constraint("Vertical", 16),
    Sketcher.Constraint("Horizontal", 17),
    Sketcher.Constraint("Vertical", 18),
    Sketcher.Constraint("Horizontal", 19),
    Sketcher.Constraint("Vertical", 20),
    Sketcher.Constraint("Horizontal", 21),
    Sketcher.Constraint("Vertical", 22),
    Sketcher.Constraint("Horizontal", 23),
    Sketcher.Constraint("Symmetric", 1, 2, 20, 2, -2),
    Sketcher.Constraint("Symmetric", 3, 2, 22, 2, -2),
    Sketcher.Constraint("Symmetric", 5, 2, 24, 2, -2),
    Sketcher.Constraint("Symmetric", 4, 2, 25, 2, -2),
    Sketcher.Constraint("Symmetric", 7, 2, 26, 2, -2),
    Sketcher.Constraint("Symmetric", 6, 2, 27, 2, -2),
    Sketcher.Constraint("Symmetric", 9, 2, 28, 2, -2),
    Sketcher.Constraint("Symmetric", 8, 2, 29, 2, -2),
    Sketcher.Constraint("Symmetric", 11, 2, 30, 2, -2),
    Sketcher.Constraint("Symmetric", 10, 2, 31, 2, -2),
    Sketcher.Constraint("Symmetric", 13, 2, 32, 2, -2),
    Sketcher.Constraint("Symmetric", 12, 2, 33, 2, -2),
    Sketcher.Constraint("Symmetric", 15, 2, 34, 2, -2),
    Sketcher.Constraint("Symmetric", 14, 2, 35, 2, -2),
    Sketcher.Constraint("Perpendicular", 4, 5),
    Sketcher.Constraint("Perpendicular", 5, 6),
    Sketcher.Constraint("Perpendicular", 6, 7),
    Sketcher.Constraint("Perpendicular", 8, 9),
    Sketcher.Constraint("Perpendicular", 9, 10),
    Sketcher.Constraint("Perpendicular", 10, 11),
    Sketcher.Constraint("Perpendicular", 11, 12),
    Sketcher.Constraint("Perpendicular", 12, 13),
    Sketcher.Constraint("Perpendicular", 13, 14),
    Sketcher.Constraint("Perpendicular", 14, 15),
    Sketcher.Constraint("Equal", 3, 17),
    Sketcher.Constraint("Equal", 2, 16),
    Sketcher.Constraint("Equal", 6, 8),
    Sketcher.Constraint("Equal", 10, 12),
    Sketcher.Constraint("Equal", 11, 13),
    Sketcher.Constraint("DistanceX", 1, 1, 1, 2, 50.0),
    Sketcher.Constraint("DistanceY", 0, 2, 0, 1, 6.0),
    Sketcher.Constraint("Distance", 4, 6.0),
    Sketcher.Constraint("Distance", 5, 50.0),
    Sketcher.Constraint("Distance", 9, 100.0),
    Sketcher.Constraint("DistanceX", 0, 2, -1, 1, 165.0),
    Sketcher.Constraint("DistanceX", 16, 2, -1, 1, 25.0),
    Sketcher.Constraint("DistanceX", 5, 2, -1, 1, 237.9129),
    Sketcher.Constraint("DistanceX", 8, 2, 10, 2, 48.3772),
    Sketcher.Constraint("DistanceY", 5, 2, 11, 2, 60.749902),
    Sketcher.Constraint("DistanceY", 0, 2, -1, 1, 75.642859),
    Sketcher.Constraint("DistanceX", 4, 2, -1, 1, 212.524969),
    Sketcher.Constraint("DistanceY", -1, 1, 8, 2, 49.559151),
    Sketcher.Constraint("DistanceX", 10, 2, -1, 1, 175.603448),
    Sketcher.Constraint("DistanceY", -1, 1, 12, 2, 293.642171),
    Sketcher.Constraint("DistanceX", 15, 2, -1, 1, 71.653062),
    Sketcher.Constraint("DistanceY", -1, 1, 16, 2, 329.90114),
])
pocket2 = body.newObject("PartDesign::Pocket", "Pocket001")
pocket2.Profile = sketch4
pocket2.Length = 10

sketch5 = body.newObject("Sketcher::SketchObject", "Sketch004")
sketch5.AttachmentSupport = (doc.getObject("XY_Plane"), [""])
sketch5.MapMode = "FlatFace"
sketch5.AttachmentOffset = App.Placement(Vector(0, 0, 6), App.Rotation())
add_polygon(sketch5, [(-294, 369), (-294, -207), (0, -207), (0, 369)])
sketch5.addConstraint([
    Sketcher.Constraint("Vertical", 0),
    Sketcher.Constraint("Horizontal", 1),
    Sketcher.Constraint("Vertical", 2),
    Sketcher.Constraint("Horizontal", 3),
    Sketcher.Constraint("PointOnObject", 1, 2, -2),
    Sketcher.Constraint("DistanceY", 0, 2, 0, 1, 576.296602),
    Sketcher.Constraint("DistanceX", 1, 1, 1, 2, 293.706966),
    Sketcher.Constraint("DistanceY", -1, 1, 2, 2, 369.095518),
])
pocket3 = body.newObject("PartDesign::Pocket", "Pocket002")
pocket3.Profile = sketch5
pocket3.Length = 10

sketch6 = body.newObject("Sketcher::SketchObject", "Sketch005")
sketch6.AttachmentSupport = (doc.getObject("XY_Plane"), [""])
sketch6.MapMode = "FlatFace"
sketch6.AttachmentOffset = App.Placement(Vector(0, 0, 6), App.Rotation())
add_polygon(sketch6, [(-6, 290), (-6, 250), (0, 250), (0, 290)])
add_polygon(sketch6, [(-6, 110), (-6, 60), (0, 60), (0, 110)])
add_polygon(sketch6, [(-6, -75), (-6, -150), (0, -150), (0, -75)])
sketch6.addConstraint([
    Sketcher.Constraint("Vertical", 0),
    Sketcher.Constraint("Horizontal", 1),
    Sketcher.Constraint("Vertical", 2),
    Sketcher.Constraint("Horizontal", 3),
    Sketcher.Constraint("Vertical", 4),
    Sketcher.Constraint("Horizontal", 5),
    Sketcher.Constraint("Vertical", 6),
    Sketcher.Constraint("Horizontal", 7),
    Sketcher.Constraint("Vertical", 8),
    Sketcher.Constraint("Horizontal", 9),
    Sketcher.Constraint("Vertical", 10),
    Sketcher.Constraint("Horizontal", 11),
    Sketcher.Constraint("PointOnObject", 1, 2, -2),
    Sketcher.Constraint("PointOnObject", 5, 2, -2),
    Sketcher.Constraint("PointOnObject", 9, 2, -2),
    Sketcher.Constraint("Vertical", 3, 2, 4, 2),
    Sketcher.Constraint("Vertical", 7, 2, 8, 2),
    Sketcher.Constraint("DistanceX", 1, 1, 1, 2, 6.0),
    Sketcher.Constraint("DistanceY", 0, 2, 0, 1, 40.0),
    Sketcher.Constraint("DistanceY", 4, 2, 4, 1, 50.0),
    Sketcher.Constraint("DistanceY", 8, 2, 8, 1, 75.0),
    Sketcher.Constraint("DistanceY", 4, 2, 0, 2, 190.0),
    Sketcher.Constraint("DistanceY", 8, 2, 4, 2, 210.0),
    Sketcher.Constraint("DistanceY", -1, 1, 0, 2, 250.357141),
])
pad3 = body.newObject("PartDesign::Pad", "Pad002")
pad3.Profile = sketch6
pad3.Length = 6
pad3.Reversed = True

doc.recompute()
